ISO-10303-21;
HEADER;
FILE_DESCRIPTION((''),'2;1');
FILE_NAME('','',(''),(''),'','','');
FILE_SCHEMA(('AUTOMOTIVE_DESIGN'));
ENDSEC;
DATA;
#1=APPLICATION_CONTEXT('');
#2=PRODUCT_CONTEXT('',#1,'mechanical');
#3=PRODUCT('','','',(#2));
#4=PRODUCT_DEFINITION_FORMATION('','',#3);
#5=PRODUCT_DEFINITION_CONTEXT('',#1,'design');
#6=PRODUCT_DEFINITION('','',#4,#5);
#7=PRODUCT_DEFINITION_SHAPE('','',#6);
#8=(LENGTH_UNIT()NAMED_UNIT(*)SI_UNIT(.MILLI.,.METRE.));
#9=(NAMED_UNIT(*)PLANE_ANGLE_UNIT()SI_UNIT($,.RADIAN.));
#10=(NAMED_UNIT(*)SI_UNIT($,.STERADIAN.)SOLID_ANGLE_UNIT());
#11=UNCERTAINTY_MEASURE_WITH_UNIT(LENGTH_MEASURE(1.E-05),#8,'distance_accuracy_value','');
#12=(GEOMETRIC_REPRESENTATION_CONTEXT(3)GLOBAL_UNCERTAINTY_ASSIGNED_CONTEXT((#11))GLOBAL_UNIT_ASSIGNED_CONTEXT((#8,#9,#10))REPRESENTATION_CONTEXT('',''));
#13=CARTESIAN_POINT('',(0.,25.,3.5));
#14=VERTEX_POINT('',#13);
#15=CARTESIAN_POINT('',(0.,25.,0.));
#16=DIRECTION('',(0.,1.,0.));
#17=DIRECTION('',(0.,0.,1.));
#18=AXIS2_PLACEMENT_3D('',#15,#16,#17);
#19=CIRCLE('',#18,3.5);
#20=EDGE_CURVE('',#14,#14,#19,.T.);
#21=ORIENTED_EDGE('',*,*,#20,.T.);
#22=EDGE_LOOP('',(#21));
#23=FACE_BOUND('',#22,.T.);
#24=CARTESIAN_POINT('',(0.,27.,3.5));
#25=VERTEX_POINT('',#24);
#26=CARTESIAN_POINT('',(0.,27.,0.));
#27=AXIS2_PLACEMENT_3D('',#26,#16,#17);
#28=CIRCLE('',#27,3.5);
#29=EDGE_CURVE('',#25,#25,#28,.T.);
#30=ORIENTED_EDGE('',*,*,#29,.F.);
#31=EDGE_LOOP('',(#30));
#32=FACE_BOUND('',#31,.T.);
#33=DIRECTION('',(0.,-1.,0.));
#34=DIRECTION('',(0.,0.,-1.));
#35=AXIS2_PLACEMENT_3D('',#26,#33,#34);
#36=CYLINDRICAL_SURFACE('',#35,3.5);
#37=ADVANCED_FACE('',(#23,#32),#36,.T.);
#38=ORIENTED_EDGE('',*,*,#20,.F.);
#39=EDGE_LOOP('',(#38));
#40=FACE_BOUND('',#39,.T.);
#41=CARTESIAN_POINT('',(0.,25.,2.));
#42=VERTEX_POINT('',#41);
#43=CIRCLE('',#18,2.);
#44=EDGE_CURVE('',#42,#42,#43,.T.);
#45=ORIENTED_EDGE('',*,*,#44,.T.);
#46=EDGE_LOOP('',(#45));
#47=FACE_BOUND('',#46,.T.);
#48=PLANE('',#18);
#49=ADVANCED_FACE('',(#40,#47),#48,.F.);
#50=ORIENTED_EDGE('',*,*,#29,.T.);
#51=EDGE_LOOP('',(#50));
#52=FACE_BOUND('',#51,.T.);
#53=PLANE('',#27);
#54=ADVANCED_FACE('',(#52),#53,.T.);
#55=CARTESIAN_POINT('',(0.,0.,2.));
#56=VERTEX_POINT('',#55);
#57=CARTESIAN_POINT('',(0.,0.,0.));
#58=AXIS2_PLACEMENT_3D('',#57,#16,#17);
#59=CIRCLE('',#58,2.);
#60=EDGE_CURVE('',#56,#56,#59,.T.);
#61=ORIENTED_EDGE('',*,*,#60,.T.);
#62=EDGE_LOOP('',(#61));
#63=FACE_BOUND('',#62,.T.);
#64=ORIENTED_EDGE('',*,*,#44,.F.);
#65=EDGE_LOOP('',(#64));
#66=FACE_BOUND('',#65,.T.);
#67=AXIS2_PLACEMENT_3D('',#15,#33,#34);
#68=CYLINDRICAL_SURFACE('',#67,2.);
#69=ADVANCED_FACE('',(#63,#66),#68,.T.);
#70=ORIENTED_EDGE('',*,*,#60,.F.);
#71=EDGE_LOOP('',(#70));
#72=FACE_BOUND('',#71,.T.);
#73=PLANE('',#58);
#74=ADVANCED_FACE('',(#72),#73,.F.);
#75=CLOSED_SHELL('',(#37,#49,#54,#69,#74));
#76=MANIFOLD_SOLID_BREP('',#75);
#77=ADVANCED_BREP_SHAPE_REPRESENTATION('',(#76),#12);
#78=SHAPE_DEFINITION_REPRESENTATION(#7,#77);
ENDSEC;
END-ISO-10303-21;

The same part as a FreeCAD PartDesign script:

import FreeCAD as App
import Part
import Sketcher
from FreeCAD import Vector
Q = App.Units.Quantity

doc = App.newDocument("Part")
body = doc.addObject("PartDesign::Body", "Body")

# Sketch on XZ plane
sketch1 = body.newObject("Sketcher::SketchObject", "Sketch")
sketch1.AttachmentSupport = (doc.getObject("XZ_Plane"), [""])
sketch1.MapMode = "FlatFace"
sketch1.addGeometry(Part.Circle(Vector(0, 0, 0), Vector(0, 0, 1), 2), False)
sketch1.addConstraint([
    Sketcher.Constraint("Coincident", 0, 3, -1, 1),
    Sketcher.Constraint("Diameter", 0, Q("4 mm")),
])
pad1 = body.newObject("PartDesign::Pad", "Pad")
pad1.Profile = sketch1
pad1.Length = 25
pad1.Reversed = True

# Sketch on XZ plane
sketch2 = body.newObject("Sketcher::SketchObject", "Sketch001")
sketch2.AttachmentSupport = (doc.getObject("XZ_Plane"), [""])
sketch2.MapMode = "FlatFace"
sketch2.AttachmentOffset = App.Placement(Vector(0, 0, -25), App.Rotation())
sketch2.addGeometry(Part.Circle(Vector(0, 0, 0), Vector(0, 0, 1), 3.5), False)
sketch2.addConstraint([
    Sketcher.Constraint("Coincident", 0, 3, -1, 1),
    Sketcher.Constraint("Diameter", 0, Q("7 mm")),
])
pad2 = body.newObject("PartDesign::Pad", "Pad001")
pad2.Profile = sketch2
pad2.Length = 2
pad2.Reversed = True

doc.recompute()
